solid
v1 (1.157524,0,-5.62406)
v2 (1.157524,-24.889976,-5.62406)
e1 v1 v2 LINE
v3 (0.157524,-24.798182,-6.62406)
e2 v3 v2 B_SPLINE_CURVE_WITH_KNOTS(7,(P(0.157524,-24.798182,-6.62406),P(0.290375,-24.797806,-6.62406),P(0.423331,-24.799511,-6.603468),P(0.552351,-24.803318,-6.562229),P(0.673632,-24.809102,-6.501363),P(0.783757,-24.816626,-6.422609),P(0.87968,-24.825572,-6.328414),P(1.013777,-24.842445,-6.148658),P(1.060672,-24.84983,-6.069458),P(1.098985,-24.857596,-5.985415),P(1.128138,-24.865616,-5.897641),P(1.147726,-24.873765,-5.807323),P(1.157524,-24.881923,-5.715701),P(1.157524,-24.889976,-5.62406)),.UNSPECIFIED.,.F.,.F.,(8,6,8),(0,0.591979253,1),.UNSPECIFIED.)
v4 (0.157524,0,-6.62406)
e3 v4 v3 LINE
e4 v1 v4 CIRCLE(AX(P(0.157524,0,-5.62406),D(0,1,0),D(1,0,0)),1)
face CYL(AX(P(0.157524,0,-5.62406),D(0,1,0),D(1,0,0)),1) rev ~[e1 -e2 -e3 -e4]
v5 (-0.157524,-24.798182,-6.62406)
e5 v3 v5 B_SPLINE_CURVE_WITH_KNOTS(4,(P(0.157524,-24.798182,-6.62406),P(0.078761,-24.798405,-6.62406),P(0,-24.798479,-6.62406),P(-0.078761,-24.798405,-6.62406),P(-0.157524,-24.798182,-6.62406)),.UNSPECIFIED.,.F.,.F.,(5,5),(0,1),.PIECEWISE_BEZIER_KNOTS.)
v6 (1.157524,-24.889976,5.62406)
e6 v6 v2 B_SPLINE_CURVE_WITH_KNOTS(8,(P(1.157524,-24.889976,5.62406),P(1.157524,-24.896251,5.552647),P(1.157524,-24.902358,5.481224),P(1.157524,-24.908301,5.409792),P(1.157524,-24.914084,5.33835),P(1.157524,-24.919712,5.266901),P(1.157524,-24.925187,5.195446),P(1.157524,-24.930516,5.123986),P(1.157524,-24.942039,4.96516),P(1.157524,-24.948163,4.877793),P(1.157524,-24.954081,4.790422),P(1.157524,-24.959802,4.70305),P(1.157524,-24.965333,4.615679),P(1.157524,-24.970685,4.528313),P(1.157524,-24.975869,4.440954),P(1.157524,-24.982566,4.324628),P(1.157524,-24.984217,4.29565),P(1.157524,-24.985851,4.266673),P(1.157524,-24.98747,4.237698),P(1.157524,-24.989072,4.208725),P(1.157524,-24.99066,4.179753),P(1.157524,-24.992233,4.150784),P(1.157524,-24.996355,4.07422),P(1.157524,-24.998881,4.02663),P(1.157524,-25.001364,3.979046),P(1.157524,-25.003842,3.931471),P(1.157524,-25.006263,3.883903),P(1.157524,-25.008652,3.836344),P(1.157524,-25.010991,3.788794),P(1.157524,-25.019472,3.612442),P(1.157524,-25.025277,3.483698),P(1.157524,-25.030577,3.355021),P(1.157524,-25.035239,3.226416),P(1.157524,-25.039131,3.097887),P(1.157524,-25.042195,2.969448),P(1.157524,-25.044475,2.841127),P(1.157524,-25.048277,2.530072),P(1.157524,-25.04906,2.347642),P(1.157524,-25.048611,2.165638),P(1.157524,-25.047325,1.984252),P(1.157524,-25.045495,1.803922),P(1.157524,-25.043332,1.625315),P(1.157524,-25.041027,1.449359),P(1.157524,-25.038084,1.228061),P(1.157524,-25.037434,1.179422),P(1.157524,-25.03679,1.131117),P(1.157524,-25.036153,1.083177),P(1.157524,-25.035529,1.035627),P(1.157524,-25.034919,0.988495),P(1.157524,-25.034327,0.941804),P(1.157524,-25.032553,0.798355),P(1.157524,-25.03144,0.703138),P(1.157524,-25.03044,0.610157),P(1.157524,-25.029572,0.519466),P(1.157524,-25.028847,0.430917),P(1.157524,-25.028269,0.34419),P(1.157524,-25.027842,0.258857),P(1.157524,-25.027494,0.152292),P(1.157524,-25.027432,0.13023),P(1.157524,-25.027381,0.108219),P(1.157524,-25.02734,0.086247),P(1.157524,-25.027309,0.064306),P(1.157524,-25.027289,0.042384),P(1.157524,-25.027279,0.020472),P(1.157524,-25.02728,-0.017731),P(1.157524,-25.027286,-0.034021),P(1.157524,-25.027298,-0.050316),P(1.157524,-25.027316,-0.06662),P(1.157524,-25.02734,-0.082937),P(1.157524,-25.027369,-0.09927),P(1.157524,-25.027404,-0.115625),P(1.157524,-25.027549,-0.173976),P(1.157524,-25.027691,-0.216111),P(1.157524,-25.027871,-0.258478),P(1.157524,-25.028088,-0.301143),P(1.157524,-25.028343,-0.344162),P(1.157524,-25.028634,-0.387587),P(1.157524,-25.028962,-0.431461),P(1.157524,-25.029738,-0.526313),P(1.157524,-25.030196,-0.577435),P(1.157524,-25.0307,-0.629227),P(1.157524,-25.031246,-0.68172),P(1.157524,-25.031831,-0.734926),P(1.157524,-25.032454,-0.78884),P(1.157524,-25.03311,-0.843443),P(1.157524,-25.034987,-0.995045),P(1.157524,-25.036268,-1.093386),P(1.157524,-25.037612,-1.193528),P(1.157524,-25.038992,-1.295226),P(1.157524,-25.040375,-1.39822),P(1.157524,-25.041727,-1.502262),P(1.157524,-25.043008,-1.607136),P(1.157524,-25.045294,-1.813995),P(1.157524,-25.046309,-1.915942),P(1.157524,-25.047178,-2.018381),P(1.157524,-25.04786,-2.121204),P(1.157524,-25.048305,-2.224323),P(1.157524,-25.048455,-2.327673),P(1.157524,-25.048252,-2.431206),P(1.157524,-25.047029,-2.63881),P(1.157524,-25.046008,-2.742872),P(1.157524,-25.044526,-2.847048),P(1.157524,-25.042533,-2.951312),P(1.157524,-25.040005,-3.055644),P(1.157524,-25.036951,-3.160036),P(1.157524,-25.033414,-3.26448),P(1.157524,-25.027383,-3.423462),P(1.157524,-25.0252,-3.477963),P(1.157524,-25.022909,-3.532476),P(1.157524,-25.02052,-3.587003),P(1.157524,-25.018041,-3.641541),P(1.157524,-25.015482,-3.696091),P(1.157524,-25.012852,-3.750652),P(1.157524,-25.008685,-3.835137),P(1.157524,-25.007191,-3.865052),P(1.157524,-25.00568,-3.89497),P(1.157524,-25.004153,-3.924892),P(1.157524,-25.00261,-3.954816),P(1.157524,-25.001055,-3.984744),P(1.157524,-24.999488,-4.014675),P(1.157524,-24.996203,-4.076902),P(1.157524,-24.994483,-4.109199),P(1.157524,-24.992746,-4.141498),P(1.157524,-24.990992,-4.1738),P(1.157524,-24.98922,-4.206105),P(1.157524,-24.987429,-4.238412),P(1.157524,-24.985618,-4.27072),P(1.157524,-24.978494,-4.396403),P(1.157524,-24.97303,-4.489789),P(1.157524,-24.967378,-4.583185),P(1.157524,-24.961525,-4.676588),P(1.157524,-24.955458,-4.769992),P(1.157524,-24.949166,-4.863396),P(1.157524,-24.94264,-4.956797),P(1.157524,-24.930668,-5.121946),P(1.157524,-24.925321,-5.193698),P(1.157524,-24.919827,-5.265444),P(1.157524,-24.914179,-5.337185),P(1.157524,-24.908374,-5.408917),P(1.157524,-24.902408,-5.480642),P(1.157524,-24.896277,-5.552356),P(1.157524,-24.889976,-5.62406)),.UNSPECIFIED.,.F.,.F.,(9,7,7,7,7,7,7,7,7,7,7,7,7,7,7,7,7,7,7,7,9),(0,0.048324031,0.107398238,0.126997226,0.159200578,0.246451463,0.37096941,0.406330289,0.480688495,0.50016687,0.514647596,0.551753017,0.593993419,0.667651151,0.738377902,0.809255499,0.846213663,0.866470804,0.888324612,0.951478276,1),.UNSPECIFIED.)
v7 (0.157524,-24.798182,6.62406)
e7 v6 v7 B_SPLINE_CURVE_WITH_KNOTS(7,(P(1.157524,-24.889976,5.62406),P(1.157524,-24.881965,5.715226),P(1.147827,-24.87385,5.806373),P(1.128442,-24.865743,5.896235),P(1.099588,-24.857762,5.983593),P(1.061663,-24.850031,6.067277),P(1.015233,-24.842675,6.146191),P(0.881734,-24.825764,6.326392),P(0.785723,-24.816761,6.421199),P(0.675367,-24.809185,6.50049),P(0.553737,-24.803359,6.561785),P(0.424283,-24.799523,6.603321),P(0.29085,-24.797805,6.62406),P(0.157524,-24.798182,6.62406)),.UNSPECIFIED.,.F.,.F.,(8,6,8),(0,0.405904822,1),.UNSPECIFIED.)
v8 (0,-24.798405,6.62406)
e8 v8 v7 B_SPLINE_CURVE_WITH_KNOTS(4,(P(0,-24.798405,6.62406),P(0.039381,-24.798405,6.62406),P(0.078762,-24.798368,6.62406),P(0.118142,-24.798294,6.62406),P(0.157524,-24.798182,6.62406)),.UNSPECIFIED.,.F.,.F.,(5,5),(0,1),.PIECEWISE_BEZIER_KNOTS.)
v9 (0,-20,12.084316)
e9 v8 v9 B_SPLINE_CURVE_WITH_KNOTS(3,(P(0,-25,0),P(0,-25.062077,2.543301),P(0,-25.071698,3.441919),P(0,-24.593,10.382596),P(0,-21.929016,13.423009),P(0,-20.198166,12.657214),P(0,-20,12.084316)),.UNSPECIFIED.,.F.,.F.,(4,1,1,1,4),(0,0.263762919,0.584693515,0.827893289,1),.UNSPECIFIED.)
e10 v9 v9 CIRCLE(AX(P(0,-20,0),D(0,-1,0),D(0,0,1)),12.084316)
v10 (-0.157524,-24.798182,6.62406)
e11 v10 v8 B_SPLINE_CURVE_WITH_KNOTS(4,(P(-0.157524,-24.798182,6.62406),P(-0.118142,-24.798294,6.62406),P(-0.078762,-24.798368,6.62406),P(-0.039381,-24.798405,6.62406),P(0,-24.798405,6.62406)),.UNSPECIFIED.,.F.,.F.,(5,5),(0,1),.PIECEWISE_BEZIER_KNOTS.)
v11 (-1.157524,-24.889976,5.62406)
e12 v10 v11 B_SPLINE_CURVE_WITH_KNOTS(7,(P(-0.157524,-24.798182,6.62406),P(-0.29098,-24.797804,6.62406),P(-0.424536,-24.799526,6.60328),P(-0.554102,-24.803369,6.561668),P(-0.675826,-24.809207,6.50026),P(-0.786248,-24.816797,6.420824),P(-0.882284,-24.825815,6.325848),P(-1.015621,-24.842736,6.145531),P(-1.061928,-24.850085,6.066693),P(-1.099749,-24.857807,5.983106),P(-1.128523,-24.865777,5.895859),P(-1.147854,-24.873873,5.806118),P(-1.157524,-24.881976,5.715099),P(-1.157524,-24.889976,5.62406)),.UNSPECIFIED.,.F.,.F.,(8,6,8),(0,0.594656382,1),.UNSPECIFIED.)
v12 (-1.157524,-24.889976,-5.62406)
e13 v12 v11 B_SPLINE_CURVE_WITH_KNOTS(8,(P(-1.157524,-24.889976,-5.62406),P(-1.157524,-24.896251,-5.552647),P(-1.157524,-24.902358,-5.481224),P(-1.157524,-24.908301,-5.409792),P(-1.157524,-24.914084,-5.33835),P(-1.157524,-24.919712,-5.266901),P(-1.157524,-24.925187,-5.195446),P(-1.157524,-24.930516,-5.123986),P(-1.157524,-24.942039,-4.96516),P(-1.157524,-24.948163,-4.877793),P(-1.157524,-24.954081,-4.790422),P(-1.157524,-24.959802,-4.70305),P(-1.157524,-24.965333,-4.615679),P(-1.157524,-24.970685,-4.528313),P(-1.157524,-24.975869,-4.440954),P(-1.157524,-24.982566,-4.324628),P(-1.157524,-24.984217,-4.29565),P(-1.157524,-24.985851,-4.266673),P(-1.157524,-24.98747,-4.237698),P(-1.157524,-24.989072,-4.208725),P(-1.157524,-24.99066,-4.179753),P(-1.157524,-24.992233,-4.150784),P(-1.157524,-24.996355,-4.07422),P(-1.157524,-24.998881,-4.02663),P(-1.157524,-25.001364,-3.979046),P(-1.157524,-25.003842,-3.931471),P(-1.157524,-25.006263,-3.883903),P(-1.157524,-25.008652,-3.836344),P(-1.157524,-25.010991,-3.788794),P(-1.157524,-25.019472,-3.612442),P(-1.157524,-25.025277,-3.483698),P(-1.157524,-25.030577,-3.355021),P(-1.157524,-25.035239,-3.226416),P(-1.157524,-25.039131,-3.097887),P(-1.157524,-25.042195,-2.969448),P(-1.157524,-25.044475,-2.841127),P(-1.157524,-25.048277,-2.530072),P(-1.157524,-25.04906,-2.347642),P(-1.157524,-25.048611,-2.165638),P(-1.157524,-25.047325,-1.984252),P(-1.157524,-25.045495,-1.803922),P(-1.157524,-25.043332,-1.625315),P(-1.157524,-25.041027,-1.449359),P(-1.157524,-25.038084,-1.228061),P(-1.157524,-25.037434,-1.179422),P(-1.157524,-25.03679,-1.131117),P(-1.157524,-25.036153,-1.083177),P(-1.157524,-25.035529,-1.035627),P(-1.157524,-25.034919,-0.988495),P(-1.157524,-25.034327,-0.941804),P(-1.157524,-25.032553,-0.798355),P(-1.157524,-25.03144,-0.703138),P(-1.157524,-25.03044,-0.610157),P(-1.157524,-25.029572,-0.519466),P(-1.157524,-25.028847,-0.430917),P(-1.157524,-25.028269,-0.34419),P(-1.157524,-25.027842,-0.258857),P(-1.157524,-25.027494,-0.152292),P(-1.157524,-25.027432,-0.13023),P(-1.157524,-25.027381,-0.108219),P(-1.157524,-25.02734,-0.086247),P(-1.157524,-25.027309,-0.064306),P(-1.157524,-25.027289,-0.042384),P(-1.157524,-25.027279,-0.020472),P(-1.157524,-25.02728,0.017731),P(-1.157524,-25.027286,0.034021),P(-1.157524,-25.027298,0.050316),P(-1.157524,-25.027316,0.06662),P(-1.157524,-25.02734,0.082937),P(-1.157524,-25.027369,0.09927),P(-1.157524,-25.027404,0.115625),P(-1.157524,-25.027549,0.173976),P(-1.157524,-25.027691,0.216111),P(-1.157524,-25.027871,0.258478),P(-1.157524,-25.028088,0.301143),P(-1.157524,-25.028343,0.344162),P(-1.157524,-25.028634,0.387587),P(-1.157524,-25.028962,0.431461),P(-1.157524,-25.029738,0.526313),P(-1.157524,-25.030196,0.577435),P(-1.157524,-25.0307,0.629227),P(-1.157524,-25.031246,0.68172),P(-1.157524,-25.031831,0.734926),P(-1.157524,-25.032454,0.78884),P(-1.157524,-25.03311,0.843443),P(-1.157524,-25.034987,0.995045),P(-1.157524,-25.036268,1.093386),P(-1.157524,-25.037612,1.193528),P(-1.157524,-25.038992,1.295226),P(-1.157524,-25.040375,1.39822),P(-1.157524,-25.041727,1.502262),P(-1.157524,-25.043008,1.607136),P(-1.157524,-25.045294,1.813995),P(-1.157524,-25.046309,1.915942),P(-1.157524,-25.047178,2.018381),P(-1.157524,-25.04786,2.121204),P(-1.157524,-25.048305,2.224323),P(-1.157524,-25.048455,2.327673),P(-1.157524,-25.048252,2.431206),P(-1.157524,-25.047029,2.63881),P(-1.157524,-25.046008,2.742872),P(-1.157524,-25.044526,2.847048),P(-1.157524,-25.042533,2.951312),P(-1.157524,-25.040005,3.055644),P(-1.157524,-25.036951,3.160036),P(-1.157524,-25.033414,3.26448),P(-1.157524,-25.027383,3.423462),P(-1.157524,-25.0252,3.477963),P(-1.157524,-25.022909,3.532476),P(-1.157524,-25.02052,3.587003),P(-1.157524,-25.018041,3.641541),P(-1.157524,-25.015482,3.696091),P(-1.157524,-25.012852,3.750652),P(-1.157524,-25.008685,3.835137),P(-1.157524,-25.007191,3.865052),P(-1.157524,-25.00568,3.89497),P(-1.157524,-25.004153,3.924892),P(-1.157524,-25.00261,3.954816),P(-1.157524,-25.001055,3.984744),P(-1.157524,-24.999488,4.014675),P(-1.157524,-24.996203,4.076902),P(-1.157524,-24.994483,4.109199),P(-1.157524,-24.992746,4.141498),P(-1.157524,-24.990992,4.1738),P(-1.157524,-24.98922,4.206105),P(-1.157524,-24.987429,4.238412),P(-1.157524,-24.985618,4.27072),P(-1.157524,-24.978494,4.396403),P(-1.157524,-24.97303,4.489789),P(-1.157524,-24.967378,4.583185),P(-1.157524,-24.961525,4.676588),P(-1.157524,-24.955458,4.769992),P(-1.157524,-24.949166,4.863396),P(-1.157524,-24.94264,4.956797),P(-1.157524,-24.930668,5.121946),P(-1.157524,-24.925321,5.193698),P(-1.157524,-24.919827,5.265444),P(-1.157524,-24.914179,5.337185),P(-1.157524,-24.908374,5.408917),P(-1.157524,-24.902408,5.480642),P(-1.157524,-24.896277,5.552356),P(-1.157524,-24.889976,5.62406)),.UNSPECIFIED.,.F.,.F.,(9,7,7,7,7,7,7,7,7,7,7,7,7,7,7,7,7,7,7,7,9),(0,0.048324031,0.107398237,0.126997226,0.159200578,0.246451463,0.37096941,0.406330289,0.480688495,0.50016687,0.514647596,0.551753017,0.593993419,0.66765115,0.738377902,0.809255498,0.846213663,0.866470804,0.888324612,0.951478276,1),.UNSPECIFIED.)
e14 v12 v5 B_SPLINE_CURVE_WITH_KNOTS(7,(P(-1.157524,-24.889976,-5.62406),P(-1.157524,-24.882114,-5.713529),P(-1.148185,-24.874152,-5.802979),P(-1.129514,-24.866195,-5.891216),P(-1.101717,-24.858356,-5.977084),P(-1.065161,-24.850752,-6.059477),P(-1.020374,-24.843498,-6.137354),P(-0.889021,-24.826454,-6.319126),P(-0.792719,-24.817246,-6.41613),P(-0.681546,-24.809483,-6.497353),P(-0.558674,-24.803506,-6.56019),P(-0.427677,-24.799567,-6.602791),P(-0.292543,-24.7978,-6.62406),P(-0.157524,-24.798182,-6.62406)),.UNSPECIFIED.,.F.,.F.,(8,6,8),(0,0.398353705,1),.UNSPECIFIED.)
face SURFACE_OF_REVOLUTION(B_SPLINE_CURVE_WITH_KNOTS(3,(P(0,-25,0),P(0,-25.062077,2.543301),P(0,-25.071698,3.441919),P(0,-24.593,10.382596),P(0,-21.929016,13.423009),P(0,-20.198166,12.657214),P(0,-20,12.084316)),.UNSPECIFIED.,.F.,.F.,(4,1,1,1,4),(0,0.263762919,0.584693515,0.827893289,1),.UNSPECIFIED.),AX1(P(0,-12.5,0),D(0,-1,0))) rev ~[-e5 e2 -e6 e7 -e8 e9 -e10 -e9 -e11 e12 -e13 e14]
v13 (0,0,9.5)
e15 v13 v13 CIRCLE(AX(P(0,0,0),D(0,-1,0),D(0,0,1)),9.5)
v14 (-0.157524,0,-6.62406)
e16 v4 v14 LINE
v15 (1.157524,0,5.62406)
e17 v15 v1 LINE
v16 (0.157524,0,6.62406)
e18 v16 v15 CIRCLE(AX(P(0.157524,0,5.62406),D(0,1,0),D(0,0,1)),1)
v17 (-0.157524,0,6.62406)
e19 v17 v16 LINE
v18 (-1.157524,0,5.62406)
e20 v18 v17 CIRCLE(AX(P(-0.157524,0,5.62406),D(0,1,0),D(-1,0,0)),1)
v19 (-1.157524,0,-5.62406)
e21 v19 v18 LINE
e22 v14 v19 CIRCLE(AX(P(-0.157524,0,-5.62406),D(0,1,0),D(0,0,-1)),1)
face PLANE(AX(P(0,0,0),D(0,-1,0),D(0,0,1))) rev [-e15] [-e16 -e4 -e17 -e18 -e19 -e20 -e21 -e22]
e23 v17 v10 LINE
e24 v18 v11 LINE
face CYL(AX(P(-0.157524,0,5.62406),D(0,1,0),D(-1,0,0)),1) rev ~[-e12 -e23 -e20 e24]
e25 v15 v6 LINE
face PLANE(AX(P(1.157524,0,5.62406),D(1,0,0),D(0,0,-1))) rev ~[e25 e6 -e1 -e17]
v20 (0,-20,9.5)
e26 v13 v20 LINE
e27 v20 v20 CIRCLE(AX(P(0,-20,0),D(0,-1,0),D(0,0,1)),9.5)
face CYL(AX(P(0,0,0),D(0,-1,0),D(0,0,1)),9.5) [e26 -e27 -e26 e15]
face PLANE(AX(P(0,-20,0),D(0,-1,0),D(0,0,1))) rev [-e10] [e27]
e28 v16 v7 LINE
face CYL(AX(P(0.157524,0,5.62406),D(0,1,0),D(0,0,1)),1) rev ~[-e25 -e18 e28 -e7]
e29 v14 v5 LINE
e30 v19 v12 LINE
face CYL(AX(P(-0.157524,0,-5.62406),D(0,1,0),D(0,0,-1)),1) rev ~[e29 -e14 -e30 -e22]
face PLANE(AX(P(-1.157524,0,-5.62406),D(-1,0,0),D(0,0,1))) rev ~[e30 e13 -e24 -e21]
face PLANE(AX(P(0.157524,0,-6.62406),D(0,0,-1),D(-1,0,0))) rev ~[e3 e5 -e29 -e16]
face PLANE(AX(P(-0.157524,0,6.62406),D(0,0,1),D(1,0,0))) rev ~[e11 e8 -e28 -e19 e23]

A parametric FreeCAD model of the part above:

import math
import FreeCAD as App
import Part
import Sketcher
Q = App.Units.Quantity

doc = App.newDocument("Part")
params = doc.addObject("Spreadsheet::Sheet", "Params")
for row, (alias, value) in enumerate([
    ("sketch1_height", "9.5 mm"),
    ("revolution_angle", "360 deg"),
    ("sketch2_radius", "1 mm"),
], start=1):
    params.set(f"A{row}", alias)
    params.set(f"B{row}", "=" + value)
    params.setAlias(f"B{row}", alias)

body = doc.addObject("PartDesign::Body", "Body")

sketch1 = body.newObject("Sketcher::SketchObject", "Sketch")
sketch1.AttachmentSupport = (doc.getObject("YZ_Plane"), [""])
sketch1.MapMode = "FlatFace"
sketch1.addGeometry([
    Part.LineSegment(App.Vector(-25, 0, 0), App.Vector(0, 0, 0)),
    Part.LineSegment(App.Vector(0, 0, 0), App.Vector(0, 9.5, 0)),
    Part.LineSegment(App.Vector(0, 9.5, 0), App.Vector(-20, 9.5, 0)),
    Part.LineSegment(App.Vector(-20, 9.5, 0), App.Vector(-20, 12.084316, 0)),
    Part.BSplineCurve([App.Vector(-25, 0, 0), App.Vector(-25.062077, 2.543301, 0), App.Vector(-25.071698, 3.441919, 0), App.Vector(-24.593, 10.382596, 0), App.Vector(-21.929016, 13.423009, 0), App.Vector(-20.198166, 12.657214, 0), App.Vector(-20, 12.084316, 0)], [4, 1, 1, 1, 4], [0, 0.263762919, 0.584693515, 0.827893289, 1], False, 3, [1, 1, 1, 1, 1, 1, 1], False),
], False)
sketch1.addConstraint([
    Sketcher.Constraint("Block", 4),
    Sketcher.Constraint("Coincident", 0, 2, 1, 1),
    Sketcher.Constraint("Coincident", 1, 2, 2, 1),
    Sketcher.Constraint("Coincident", 2, 2, 3, 1),
    Sketcher.Constraint("Coincident", 3, 2, 4, 2),
    Sketcher.Constraint("Coincident", 4, 1, 0, 1),
    Sketcher.Constraint("Horizontal", 0),
    Sketcher.Constraint("Vertical", 1),
    Sketcher.Constraint("Horizontal", 2),
    Sketcher.Constraint("Vertical", 3),
    Sketcher.Constraint("PointOnObject", 1, 2, -2),
    Sketcher.Constraint("DistanceY", 1, 1, 1, 2, Q("9.5 mm")),
])
sketch1.setExpression("Constraints[11]", "Params.sketch1_height")
revolution = body.newObject("PartDesign::Revolution", "Revolution")
revolution.Profile = sketch1
revolution.ReferenceAxis = (sketch1, ["H_Axis"])
revolution.setExpression("Angle", "Params.revolution_angle")

sketch2 = body.newObject("Sketcher::SketchObject", "Sketch001")
sketch2.AttachmentSupport = (doc.getObject("XZ_Plane"), [""])
sketch2.MapMode = "FlatFace"
sketch2.addGeometry([
    Part.ArcOfCircle(Part.Circle(App.Vector(-0.157524, 5.62406, 0), App.Vector(0, 0, 1), 1), math.radians(90), math.radians(180)),
    Part.LineSegment(App.Vector(-0.157524, 6.62406, 0), App.Vector(0.157524, 6.62406, 0)),
    Part.ArcOfCircle(Part.Circle(App.Vector(0.157524, 5.62406, 0), App.Vector(0, 0, 1), 1), math.radians(0), math.radians(90)),
    Part.LineSegment(App.Vector(1.157524, 5.62406, 0), App.Vector(1.157524, -5.62406, 0)),
    Part.ArcOfCircle(Part.Circle(App.Vector(0.157524, -5.62406, 0), App.Vector(0, 0, 1), 1), math.radians(-90), math.radians(0)),
    Part.LineSegment(App.Vector(0.157524, -6.62406, 0), App.Vector(-0.157524, -6.62406, 0)),
    Part.ArcOfCircle(Part.Circle(App.Vector(-0.157524, -5.62406, 0), App.Vector(0, 0, 1), 1), math.radians(180), math.radians(270)),
    Part.LineSegment(App.Vector(-1.157524, -5.62406, 0), App.Vector(-1.157524, 5.62406, 0)),
], False)
sketch2.addConstraint([
    Sketcher.Constraint("Tangent", 0, 1, 1, 1),
    Sketcher.Constraint("Tangent", 1, 2, 2, 2),
    Sketcher.Constraint("Tangent", 2, 1, 3, 1),
    Sketcher.Constraint("Tangent", 3, 2, 4, 2),
    Sketcher.Constraint("Tangent", 4, 1, 5, 1),
    Sketcher.Constraint("Tangent", 5, 2, 6, 2),
    Sketcher.Constraint("Tangent", 6, 1, 7, 1),
    Sketcher.Constraint("Tangent", 7, 2, 0, 2),
    Sketcher.Constraint("Horizontal", 1),
    Sketcher.Constraint("Vertical", 3),
    Sketcher.Constraint("Horizontal", 5),
    Sketcher.Constraint("Vertical", 7),
    Sketcher.Constraint("Equal", 0, 2),
    Sketcher.Constraint("Equal", 2, 4),
    Sketcher.Constraint("Equal", 4, 6),
    Sketcher.Constraint("Symmetric", 0, 3, 4, 3, -1, 1),
    Sketcher.Constraint("Radius", 0, Q("1 mm")),
    Sketcher.Constraint("DistanceY", 3, 2, 3, 1, Q("11.24812 mm")),
    Sketcher.Constraint("DistanceX", 1, 1, 1, 2, Q("0.315047 mm")),
])
sketch2.setExpression("Constraints[16]", "Params.sketch2_radius")
pocket1 = body.newObject("PartDesign::Pocket", "Pocket")
pocket1.Profile = sketch2
pocket1.Type = "ThroughAll"
pocket1.Reversed = True

doc.recompute()
